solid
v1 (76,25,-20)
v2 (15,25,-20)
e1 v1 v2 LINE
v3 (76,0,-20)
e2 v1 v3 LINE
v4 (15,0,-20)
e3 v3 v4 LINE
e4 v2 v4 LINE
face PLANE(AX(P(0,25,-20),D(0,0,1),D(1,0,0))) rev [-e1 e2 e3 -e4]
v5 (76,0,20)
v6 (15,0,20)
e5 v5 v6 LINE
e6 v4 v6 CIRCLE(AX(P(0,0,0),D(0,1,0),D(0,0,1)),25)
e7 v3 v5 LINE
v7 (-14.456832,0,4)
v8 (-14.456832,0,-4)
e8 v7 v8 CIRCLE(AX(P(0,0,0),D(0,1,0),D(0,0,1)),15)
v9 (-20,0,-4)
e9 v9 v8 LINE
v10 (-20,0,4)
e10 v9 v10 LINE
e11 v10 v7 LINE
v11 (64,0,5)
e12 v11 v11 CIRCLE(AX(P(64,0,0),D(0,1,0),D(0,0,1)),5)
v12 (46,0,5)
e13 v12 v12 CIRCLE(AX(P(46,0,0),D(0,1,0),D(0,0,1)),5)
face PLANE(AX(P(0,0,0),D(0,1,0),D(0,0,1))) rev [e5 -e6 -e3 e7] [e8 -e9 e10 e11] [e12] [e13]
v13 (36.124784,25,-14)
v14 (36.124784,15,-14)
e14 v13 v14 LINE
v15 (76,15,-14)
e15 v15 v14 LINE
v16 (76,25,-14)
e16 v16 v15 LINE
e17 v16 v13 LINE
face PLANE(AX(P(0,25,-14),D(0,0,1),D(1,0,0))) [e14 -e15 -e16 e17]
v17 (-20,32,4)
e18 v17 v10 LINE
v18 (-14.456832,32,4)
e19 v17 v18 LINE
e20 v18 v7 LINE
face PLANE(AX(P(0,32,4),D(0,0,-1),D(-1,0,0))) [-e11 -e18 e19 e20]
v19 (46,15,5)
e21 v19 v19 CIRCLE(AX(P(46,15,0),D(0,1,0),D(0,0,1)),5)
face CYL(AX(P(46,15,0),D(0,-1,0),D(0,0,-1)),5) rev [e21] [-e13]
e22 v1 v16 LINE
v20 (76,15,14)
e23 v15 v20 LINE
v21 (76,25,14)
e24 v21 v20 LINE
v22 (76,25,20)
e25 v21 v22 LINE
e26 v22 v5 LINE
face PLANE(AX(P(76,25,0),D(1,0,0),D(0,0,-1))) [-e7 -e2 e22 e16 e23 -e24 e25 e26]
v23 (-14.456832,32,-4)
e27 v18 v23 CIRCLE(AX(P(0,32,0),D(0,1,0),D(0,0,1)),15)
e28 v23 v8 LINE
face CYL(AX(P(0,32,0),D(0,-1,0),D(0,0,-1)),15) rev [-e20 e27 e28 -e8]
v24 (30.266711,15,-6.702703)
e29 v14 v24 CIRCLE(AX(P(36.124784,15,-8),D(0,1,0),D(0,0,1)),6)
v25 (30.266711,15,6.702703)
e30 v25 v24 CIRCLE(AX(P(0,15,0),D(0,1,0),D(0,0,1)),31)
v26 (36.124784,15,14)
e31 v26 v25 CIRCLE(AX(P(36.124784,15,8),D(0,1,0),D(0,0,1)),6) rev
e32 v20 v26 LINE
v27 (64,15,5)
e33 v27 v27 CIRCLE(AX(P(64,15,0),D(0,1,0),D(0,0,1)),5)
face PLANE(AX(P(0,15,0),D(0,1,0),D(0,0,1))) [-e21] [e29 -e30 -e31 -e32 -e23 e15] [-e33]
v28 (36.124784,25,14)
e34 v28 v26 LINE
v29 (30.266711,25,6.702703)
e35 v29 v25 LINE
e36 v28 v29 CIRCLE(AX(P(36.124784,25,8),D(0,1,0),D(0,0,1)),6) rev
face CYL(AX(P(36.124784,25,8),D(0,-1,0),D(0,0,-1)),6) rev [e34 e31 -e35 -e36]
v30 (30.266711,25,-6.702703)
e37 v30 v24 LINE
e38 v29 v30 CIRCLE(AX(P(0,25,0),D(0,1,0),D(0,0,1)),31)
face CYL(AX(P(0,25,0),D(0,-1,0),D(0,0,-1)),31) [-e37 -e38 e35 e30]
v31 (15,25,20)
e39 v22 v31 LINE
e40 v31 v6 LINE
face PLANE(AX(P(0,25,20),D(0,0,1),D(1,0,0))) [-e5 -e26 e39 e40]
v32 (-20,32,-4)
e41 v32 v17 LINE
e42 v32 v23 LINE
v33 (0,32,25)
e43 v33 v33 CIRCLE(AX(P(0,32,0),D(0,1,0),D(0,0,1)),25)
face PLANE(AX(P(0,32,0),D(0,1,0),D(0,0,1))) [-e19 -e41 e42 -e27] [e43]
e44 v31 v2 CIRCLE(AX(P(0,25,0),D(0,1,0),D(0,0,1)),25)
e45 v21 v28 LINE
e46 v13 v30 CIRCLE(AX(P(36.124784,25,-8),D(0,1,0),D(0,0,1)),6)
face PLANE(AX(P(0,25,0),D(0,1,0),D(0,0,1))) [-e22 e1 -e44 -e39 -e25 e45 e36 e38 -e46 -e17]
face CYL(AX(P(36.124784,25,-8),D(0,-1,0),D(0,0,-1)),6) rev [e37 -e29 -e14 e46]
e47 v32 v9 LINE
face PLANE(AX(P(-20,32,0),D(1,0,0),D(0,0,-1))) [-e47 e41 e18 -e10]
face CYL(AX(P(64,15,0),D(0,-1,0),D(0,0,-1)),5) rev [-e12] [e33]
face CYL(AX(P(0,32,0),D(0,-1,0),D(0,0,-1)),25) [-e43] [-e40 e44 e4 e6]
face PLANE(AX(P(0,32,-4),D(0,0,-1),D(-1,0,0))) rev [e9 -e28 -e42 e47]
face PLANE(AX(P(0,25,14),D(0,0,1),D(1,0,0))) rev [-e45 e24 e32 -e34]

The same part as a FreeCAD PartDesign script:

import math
import FreeCAD as App
import Part
import Sketcher

V = App.Vector
Q = App.Units.Quantity

doc = App.newDocument("Part")
params = doc.addObject("Spreadsheet::Sheet", "Params")
for row, (alias, value) in enumerate([
    ("sketch1_radius", "25 mm"),
    ("sketch1_radius2", "15 mm"),
    ("sketch1_height", "8 mm"),
    ("pad1_length", "32 mm"),
    ("sketch2_radius", "25 mm"),
    ("sketch2_radius2", "6 mm"),
    ("sketch2_radius3", "31 mm"),
    ("sketch2_width", "61 mm"),
    ("sketch2_height", "6 mm"),
    ("pad2_length", "25 mm"),
    ("sketch3_diameter", "10 mm"),
    ("sketch3_radius", "31 mm"),
    ("sketch3_radius2", "6 mm"),
    ("sketch3_height", "28 mm"),
    ("pad3_length", "15 mm"),
], start=1):
    params.set(f"A{row}", alias)
    params.set(f"B{row}", "=" + value)
    params.setAlias(f"B{row}", alias)

body = doc.addObject("PartDesign::Body", "Body")

sketch1 = doc.addObject("Sketcher::SketchObject", "Sketch")
body.addObject(sketch1)
sketch1.AttachmentSupport = (doc.XZ_Plane, [""])
sketch1.MapMode = "FlatFace"
sketch1.addGeometry(Part.ArcOfCircle(Part.Circle(V(0, 0, 0), V(0, 0, 1), 25), math.radians(0), math.radians(53)), False)
sketch1.addGeometry(Part.ArcOfCircle(Part.Circle(V(0, 0, 0), V(0, 0, 1), 25), math.radians(-53), math.radians(0)), False)
sketch1.addGeometry(Part.ArcOfCircle(Part.Circle(V(0, 0, 0), V(0, 0, 1), 25), math.radians(53), math.radians(307)), False)
sketch1.addGeometry(Part.LineSegment(V(-20, 4, 0), V(-20, -4, 0)), False)
sketch1.addGeometry(Part.LineSegment(V(-20, -4, 0), V(-14, -4, 0)), False)
sketch1.addGeometry(Part.ArcOfCircle(Part.Circle(V(0, 0, 0), V(0, 0, 1), 15), math.radians(-165), math.radians(165)), False)
sketch1.addGeometry(Part.LineSegment(V(-14, 4, 0), V(-20, 4, 0)), False)
sketch1.addConstraint(Sketcher.Constraint("Tangent", 0, 1, 1, 2))
sketch1.addConstraint(Sketcher.Constraint("Tangent", 1, 1, 2, 2))
sketch1.addConstraint(Sketcher.Constraint("Tangent", 2, 1, 0, 2))
sketch1.addConstraint(Sketcher.Constraint("Coincident", 3, 2, 4, 1))
sketch1.addConstraint(Sketcher.Constraint("Coincident", 4, 2, 5, 1))
sketch1.addConstraint(Sketcher.Constraint("Coincident", 5, 2, 6, 1))
sketch1.addConstraint(Sketcher.Constraint("Coincident", 6, 2, 3, 1))
sketch1.addConstraint(Sketcher.Constraint("Vertical", 3))
sketch1.addConstraint(Sketcher.Constraint("Horizontal", 4))
sketch1.addConstraint(Sketcher.Constraint("Horizontal", 6))
sketch1.addConstraint(Sketcher.Constraint("Coincident", 0, 3, -1, 1))
sketch1.addConstraint(Sketcher.Constraint("Coincident", 5, 3, -1, 1))
sketch1.addConstraint(Sketcher.Constraint("PointOnObject", 0, 1, -1))
sketch1.addConstraint(Sketcher.Constraint("Vertical", 1, 1, 2, 1))
sketch1.addConstraint(Sketcher.Constraint("Vertical", 4, 2, 5, 2))
sketch1.addConstraint(Sketcher.Constraint("Radius", 0, Q("25 mm")))
sketch1.addConstraint(Sketcher.Constraint("Radius", 5, Q("15 mm")))
sketch1.addConstraint(Sketcher.Constraint("DistanceY", 3, 2, 3, 1, Q("8 mm")))
sketch1.addConstraint(Sketcher.Constraint("DistanceX", -1, 1, 1, 1, Q("15 mm")))
sketch1.addConstraint(Sketcher.Constraint("DistanceX", 3, 2, -1, 1, Q("20 mm")))
sketch1.setExpression("Constraints[15]", "Params.sketch1_radius")
sketch1.setExpression("Constraints[16]", "Params.sketch1_radius2")
sketch1.setExpression("Constraints[17]", "Params.sketch1_height")
pad1 = doc.addObject("PartDesign::Pad", "Pad")
body.addObject(pad1)
pad1.Profile = sketch1
pad1.setExpression("Length", "Params.pad1_length")
pad1.Reversed = True

sketch2 = doc.addObject("Sketcher::SketchObject", "Sketch001")
body.addObject(sketch2)
sketch2.AttachmentSupport = (doc.XZ_Plane, [""])
sketch2.MapMode = "FlatFace"
sketch2.addGeometry(Part.ArcOfCircle(Part.Circle(V(0, 0, 0), V(0, 0, 1), 25), math.radians(0), math.radians(53)), False)
sketch2.addGeometry(Part.LineSegment(V(15, 20, 0), V(76, 20, 0)), False)
sketch2.addGeometry(Part.LineSegment(V(76, 20, 0), V(76, 14, 0)), False)
sketch2.addGeometry(Part.LineSegment(V(76, 14, 0), V(36, 14, 0)), False)
sketch2.addGeometry(Part.ArcOfCircle(Part.Circle(V(36, 8, 0), V(0, 0, 1), 6), math.radians(90), math.radians(192)), False)
sketch2.addGeometry(Part.ArcOfCircle(Part.Circle(V(0, 0, 0), V(0, 0, 1), 31), math.radians(0), math.radians(12.49)), False)
sketch2.addGeometry(Part.ArcOfCircle(Part.Circle(V(0, 0, 0), V(0, 0, 1), 31), math.radians(-12.49), math.radians(0)), False)
sketch2.addGeometry(Part.ArcOfCircle(Part.Circle(V(36, -8, 0), V(0, 0, 1), 6), math.radians(168), math.radians(270)), False)
sketch2.addGeometry(Part.LineSegment(V(36, -14, 0), V(76, -14, 0)), False)
sketch2.addGeometry(Part.LineSegment(V(76, -14, 0), V(76, -20, 0)), False)
sketch2.addGeometry(Part.LineSegment(V(76, -20, 0), V(15, -20, 0)), False)
sketch2.addGeometry(Part.ArcOfCircle(Part.Circle(V(0, 0, 0), V(0, 0, 1), 25), math.radians(-53), math.radians(0)), False)
sketch2.addConstraint(Sketcher.Constraint("Coincident", 0, 2, 1, 1))
sketch2.addConstraint(Sketcher.Constraint("Coincident", 1, 2, 2, 1))
sketch2.addConstraint(Sketcher.Constraint("Coincident", 2, 2, 3, 1))
sketch2.addConstraint(Sketcher.Constraint("Tangent", 3, 2, 4, 1))
sketch2.addConstraint(Sketcher.Constraint("Tangent", 4, 2, 5, 2))
sketch2.addConstraint(Sketcher.Constraint("Tangent", 5, 1, 6, 2))
sketch2.addConstraint(Sketcher.Constraint("Tangent", 6, 1, 7, 1))
sketch2.addConstraint(Sketcher.Constraint("Tangent", 7, 2, 8, 1))
sketch2.addConstraint(Sketcher.Constraint("Coincident", 8, 2, 9, 1))
sketch2.addConstraint(Sketcher.Constraint("Coincident", 9, 2, 10, 1))
sketch2.addConstraint(Sketcher.Constraint("Coincident", 10, 2, 11, 1))
sketch2.addConstraint(Sketcher.Constraint("Tangent", 11, 2, 0, 1))
sketch2.addConstraint(Sketcher.Constraint("Horizontal", 1))
sketch2.addConstraint(Sketcher.Constraint("Vertical", 2))
sketch2.addConstraint(Sketcher.Constraint("Horizontal", 3))
sketch2.addConstraint(Sketcher.Constraint("Horizontal", 8))
sketch2.addConstraint(Sketcher.Constraint("Vertical", 9))
sketch2.addConstraint(Sketcher.Constraint("Horizontal", 10))
sketch2.addConstraint(Sketcher.Constraint("Coincident", 0, 3, -1, 1))
sketch2.addConstraint(Sketcher.Constraint("Coincident", 5, 3, -1, 1))
sketch2.addConstraint(Sketcher.Constraint("Equal", 5, 6))
sketch2.addConstraint(Sketcher.Constraint("Equal", 4, 7))
sketch2.addConstraint(Sketcher.Constraint("Equal", 0, 11))
sketch2.addConstraint(Sketcher.Constraint("Symmetric", 2, 2, 8, 2, -1))
sketch2.addConstraint(Sketcher.Constraint("PointOnObject", 5, 1, -1))
sketch2.addConstraint(Sketcher.Constraint("PointOnObject", 11, 2, -1))
sketch2.addConstraint(Sketcher.Constraint("Vertical", 0, 2, 10, 2))
sketch2.addConstraint(Sketcher.Constraint("Radius", 0, Q("25 mm")))
sketch2.addConstraint(Sketcher.Constraint("Radius", 4, Q("6 mm")))
sketch2.addConstraint(Sketcher.Constraint("Radius", 5, Q("31 mm")))
sketch2.addConstraint(Sketcher.Constraint("DistanceX", 1, 1, 1, 2, Q("61 mm")))
sketch2.addConstraint(Sketcher.Constraint("DistanceY", 2, 2, 2, 1, Q("6 mm")))
sketch2.addConstraint(Sketcher.Constraint("DistanceY", -1, 1, 4, 3, Q("8 mm")))
sketch2.setExpression("Constraints[27]", "Params.sketch2_radius")
sketch2.setExpression("Constraints[28]", "Params.sketch2_radius2")
sketch2.setExpression("Constraints[29]", "Params.sketch2_radius3")
sketch2.setExpression("Constraints[30]", "Params.sketch2_width")
sketch2.setExpression("Constraints[31]", "Params.sketch2_height")
pad2 = doc.addObject("PartDesign::Pad", "Pad001")
body.addObject(pad2)
pad2.Profile = sketch2
pad2.setExpression("Length", "Params.pad2_length")
pad2.Reversed = True

sketch3 = doc.addObject("Sketcher::SketchObject", "Sketch002")
body.addObject(sketch3)
sketch3.AttachmentSupport = (doc.XZ_Plane, [""])
sketch3.MapMode = "FlatFace"
sketch3.addGeometry(Part.ArcOfCircle(Part.Circle(V(0, 0, 0), V(0, 0, 1), 31), math.radians(-12.49), math.radians(0)), False)
sketch3.addGeometry(Part.ArcOfCircle(Part.Circle(V(0, 0, 0), V(0, 0, 1), 31), math.radians(0), math.radians(12.49)), False)
sketch3.addGeometry(Part.ArcOfCircle(Part.Circle(V(36, 8, 0), V(0, 0, 1), 6), math.radians(90), math.radians(192)), False)
sketch3.addGeometry(Part.LineSegment(V(36, 14, 0), V(76, 14, 0)), False)
sketch3.addGeometry(Part.LineSegment(V(76, 14, 0), V(76, -14, 0)), False)
sketch3.addGeometry(Part.LineSegment(V(76, -14, 0), V(36, -14, 0)), False)
sketch3.addGeometry(Part.ArcOfCircle(Part.Circle(V(36, -8, 0), V(0, 0, 1), 6), math.radians(168), math.radians(270)), False)
sketch3.addGeometry(Part.Circle(V(46, 0, 0), V(0, 0, 1), 5), False)
sketch3.addGeometry(Part.Circle(V(64, 0, 0), V(0, 0, 1), 5), False)
sketch3.addConstraint(Sketcher.Constraint("Tangent", 0, 2, 1, 1))
sketch3.addConstraint(Sketcher.Constraint("Tangent", 1, 2, 2, 2))
sketch3.addConstraint(Sketcher.Constraint("Tangent", 2, 1, 3, 1))
sketch3.addConstraint(Sketcher.Constraint("Coincident", 3, 2, 4, 1))
sketch3.addConstraint(Sketcher.Constraint("Coincident", 4, 2, 5, 1))
sketch3.addConstraint(Sketcher.Constraint("Tangent", 5, 2, 6, 2))
sketch3.addConstraint(Sketcher.Constraint("Tangent", 6, 1, 0, 1))
sketch3.addConstraint(Sketcher.Constraint("Horizontal", 3))
sketch3.addConstraint(Sketcher.Constraint("Vertical", 4))
sketch3.addConstraint(Sketcher.Constraint("Horizontal", 5))
sketch3.addConstraint(Sketcher.Constraint("Coincident", 0, 3, -1, 1))
sketch3.addConstraint(Sketcher.Constraint("Equal", 0, 1))
sketch3.addConstraint(Sketcher.Constraint("Equal", 2, 6))
sketch3.addConstraint(Sketcher.Constraint("Equal", 7, 8))
sketch3.addConstraint(Sketcher.Constraint("PointOnObject", 7, 3, -1))
sketch3.addConstraint(Sketcher.Constraint("PointOnObject", 8, 3, -1))
sketch3.addConstraint(Sketcher.Constraint("PointOnObject", 0, 2, -1))
sketch3.addConstraint(Sketcher.Constraint("Vertical", 2, 3, 6, 3))
sketch3.addConstraint(Sketcher.Constraint("Diameter", 7, Q("10 mm")))
sketch3.addConstraint(Sketcher.Constraint("Radius", 0, Q("31 mm")))
sketch3.addConstraint(Sketcher.Constraint("Radius", 2, Q("6 mm")))
sketch3.addConstraint(Sketcher.Constraint("DistanceY", 4, 2, 4, 1, Q("28 mm")))
sketch3.addConstraint(Sketcher.Constraint("DistanceX", -1, 1, 7, 3, Q("46 mm")))
sketch3.addConstraint(Sketcher.Constraint("DistanceX", -1, 1, 8, 3, Q("64 mm")))
sketch3.addConstraint(Sketcher.Constraint("DistanceX", -1, 1, 3, 2, Q("76 mm")))
sketch3.setExpression("Constraints[18]", "Params.sketch3_diameter")
sketch3.setExpression("Constraints[19]", "Params.sketch3_radius")
sketch3.setExpression("Constraints[20]", "Params.sketch3_radius2")
sketch3.setExpression("Constraints[21]", "Params.sketch3_height")
pad3 = doc.addObject("PartDesign::Pad", "Pad002")
body.addObject(pad3)
pad3.Profile = sketch3
pad3.setExpression("Length", "Params.pad3_length")
pad3.Reversed = True

doc.recompute()
